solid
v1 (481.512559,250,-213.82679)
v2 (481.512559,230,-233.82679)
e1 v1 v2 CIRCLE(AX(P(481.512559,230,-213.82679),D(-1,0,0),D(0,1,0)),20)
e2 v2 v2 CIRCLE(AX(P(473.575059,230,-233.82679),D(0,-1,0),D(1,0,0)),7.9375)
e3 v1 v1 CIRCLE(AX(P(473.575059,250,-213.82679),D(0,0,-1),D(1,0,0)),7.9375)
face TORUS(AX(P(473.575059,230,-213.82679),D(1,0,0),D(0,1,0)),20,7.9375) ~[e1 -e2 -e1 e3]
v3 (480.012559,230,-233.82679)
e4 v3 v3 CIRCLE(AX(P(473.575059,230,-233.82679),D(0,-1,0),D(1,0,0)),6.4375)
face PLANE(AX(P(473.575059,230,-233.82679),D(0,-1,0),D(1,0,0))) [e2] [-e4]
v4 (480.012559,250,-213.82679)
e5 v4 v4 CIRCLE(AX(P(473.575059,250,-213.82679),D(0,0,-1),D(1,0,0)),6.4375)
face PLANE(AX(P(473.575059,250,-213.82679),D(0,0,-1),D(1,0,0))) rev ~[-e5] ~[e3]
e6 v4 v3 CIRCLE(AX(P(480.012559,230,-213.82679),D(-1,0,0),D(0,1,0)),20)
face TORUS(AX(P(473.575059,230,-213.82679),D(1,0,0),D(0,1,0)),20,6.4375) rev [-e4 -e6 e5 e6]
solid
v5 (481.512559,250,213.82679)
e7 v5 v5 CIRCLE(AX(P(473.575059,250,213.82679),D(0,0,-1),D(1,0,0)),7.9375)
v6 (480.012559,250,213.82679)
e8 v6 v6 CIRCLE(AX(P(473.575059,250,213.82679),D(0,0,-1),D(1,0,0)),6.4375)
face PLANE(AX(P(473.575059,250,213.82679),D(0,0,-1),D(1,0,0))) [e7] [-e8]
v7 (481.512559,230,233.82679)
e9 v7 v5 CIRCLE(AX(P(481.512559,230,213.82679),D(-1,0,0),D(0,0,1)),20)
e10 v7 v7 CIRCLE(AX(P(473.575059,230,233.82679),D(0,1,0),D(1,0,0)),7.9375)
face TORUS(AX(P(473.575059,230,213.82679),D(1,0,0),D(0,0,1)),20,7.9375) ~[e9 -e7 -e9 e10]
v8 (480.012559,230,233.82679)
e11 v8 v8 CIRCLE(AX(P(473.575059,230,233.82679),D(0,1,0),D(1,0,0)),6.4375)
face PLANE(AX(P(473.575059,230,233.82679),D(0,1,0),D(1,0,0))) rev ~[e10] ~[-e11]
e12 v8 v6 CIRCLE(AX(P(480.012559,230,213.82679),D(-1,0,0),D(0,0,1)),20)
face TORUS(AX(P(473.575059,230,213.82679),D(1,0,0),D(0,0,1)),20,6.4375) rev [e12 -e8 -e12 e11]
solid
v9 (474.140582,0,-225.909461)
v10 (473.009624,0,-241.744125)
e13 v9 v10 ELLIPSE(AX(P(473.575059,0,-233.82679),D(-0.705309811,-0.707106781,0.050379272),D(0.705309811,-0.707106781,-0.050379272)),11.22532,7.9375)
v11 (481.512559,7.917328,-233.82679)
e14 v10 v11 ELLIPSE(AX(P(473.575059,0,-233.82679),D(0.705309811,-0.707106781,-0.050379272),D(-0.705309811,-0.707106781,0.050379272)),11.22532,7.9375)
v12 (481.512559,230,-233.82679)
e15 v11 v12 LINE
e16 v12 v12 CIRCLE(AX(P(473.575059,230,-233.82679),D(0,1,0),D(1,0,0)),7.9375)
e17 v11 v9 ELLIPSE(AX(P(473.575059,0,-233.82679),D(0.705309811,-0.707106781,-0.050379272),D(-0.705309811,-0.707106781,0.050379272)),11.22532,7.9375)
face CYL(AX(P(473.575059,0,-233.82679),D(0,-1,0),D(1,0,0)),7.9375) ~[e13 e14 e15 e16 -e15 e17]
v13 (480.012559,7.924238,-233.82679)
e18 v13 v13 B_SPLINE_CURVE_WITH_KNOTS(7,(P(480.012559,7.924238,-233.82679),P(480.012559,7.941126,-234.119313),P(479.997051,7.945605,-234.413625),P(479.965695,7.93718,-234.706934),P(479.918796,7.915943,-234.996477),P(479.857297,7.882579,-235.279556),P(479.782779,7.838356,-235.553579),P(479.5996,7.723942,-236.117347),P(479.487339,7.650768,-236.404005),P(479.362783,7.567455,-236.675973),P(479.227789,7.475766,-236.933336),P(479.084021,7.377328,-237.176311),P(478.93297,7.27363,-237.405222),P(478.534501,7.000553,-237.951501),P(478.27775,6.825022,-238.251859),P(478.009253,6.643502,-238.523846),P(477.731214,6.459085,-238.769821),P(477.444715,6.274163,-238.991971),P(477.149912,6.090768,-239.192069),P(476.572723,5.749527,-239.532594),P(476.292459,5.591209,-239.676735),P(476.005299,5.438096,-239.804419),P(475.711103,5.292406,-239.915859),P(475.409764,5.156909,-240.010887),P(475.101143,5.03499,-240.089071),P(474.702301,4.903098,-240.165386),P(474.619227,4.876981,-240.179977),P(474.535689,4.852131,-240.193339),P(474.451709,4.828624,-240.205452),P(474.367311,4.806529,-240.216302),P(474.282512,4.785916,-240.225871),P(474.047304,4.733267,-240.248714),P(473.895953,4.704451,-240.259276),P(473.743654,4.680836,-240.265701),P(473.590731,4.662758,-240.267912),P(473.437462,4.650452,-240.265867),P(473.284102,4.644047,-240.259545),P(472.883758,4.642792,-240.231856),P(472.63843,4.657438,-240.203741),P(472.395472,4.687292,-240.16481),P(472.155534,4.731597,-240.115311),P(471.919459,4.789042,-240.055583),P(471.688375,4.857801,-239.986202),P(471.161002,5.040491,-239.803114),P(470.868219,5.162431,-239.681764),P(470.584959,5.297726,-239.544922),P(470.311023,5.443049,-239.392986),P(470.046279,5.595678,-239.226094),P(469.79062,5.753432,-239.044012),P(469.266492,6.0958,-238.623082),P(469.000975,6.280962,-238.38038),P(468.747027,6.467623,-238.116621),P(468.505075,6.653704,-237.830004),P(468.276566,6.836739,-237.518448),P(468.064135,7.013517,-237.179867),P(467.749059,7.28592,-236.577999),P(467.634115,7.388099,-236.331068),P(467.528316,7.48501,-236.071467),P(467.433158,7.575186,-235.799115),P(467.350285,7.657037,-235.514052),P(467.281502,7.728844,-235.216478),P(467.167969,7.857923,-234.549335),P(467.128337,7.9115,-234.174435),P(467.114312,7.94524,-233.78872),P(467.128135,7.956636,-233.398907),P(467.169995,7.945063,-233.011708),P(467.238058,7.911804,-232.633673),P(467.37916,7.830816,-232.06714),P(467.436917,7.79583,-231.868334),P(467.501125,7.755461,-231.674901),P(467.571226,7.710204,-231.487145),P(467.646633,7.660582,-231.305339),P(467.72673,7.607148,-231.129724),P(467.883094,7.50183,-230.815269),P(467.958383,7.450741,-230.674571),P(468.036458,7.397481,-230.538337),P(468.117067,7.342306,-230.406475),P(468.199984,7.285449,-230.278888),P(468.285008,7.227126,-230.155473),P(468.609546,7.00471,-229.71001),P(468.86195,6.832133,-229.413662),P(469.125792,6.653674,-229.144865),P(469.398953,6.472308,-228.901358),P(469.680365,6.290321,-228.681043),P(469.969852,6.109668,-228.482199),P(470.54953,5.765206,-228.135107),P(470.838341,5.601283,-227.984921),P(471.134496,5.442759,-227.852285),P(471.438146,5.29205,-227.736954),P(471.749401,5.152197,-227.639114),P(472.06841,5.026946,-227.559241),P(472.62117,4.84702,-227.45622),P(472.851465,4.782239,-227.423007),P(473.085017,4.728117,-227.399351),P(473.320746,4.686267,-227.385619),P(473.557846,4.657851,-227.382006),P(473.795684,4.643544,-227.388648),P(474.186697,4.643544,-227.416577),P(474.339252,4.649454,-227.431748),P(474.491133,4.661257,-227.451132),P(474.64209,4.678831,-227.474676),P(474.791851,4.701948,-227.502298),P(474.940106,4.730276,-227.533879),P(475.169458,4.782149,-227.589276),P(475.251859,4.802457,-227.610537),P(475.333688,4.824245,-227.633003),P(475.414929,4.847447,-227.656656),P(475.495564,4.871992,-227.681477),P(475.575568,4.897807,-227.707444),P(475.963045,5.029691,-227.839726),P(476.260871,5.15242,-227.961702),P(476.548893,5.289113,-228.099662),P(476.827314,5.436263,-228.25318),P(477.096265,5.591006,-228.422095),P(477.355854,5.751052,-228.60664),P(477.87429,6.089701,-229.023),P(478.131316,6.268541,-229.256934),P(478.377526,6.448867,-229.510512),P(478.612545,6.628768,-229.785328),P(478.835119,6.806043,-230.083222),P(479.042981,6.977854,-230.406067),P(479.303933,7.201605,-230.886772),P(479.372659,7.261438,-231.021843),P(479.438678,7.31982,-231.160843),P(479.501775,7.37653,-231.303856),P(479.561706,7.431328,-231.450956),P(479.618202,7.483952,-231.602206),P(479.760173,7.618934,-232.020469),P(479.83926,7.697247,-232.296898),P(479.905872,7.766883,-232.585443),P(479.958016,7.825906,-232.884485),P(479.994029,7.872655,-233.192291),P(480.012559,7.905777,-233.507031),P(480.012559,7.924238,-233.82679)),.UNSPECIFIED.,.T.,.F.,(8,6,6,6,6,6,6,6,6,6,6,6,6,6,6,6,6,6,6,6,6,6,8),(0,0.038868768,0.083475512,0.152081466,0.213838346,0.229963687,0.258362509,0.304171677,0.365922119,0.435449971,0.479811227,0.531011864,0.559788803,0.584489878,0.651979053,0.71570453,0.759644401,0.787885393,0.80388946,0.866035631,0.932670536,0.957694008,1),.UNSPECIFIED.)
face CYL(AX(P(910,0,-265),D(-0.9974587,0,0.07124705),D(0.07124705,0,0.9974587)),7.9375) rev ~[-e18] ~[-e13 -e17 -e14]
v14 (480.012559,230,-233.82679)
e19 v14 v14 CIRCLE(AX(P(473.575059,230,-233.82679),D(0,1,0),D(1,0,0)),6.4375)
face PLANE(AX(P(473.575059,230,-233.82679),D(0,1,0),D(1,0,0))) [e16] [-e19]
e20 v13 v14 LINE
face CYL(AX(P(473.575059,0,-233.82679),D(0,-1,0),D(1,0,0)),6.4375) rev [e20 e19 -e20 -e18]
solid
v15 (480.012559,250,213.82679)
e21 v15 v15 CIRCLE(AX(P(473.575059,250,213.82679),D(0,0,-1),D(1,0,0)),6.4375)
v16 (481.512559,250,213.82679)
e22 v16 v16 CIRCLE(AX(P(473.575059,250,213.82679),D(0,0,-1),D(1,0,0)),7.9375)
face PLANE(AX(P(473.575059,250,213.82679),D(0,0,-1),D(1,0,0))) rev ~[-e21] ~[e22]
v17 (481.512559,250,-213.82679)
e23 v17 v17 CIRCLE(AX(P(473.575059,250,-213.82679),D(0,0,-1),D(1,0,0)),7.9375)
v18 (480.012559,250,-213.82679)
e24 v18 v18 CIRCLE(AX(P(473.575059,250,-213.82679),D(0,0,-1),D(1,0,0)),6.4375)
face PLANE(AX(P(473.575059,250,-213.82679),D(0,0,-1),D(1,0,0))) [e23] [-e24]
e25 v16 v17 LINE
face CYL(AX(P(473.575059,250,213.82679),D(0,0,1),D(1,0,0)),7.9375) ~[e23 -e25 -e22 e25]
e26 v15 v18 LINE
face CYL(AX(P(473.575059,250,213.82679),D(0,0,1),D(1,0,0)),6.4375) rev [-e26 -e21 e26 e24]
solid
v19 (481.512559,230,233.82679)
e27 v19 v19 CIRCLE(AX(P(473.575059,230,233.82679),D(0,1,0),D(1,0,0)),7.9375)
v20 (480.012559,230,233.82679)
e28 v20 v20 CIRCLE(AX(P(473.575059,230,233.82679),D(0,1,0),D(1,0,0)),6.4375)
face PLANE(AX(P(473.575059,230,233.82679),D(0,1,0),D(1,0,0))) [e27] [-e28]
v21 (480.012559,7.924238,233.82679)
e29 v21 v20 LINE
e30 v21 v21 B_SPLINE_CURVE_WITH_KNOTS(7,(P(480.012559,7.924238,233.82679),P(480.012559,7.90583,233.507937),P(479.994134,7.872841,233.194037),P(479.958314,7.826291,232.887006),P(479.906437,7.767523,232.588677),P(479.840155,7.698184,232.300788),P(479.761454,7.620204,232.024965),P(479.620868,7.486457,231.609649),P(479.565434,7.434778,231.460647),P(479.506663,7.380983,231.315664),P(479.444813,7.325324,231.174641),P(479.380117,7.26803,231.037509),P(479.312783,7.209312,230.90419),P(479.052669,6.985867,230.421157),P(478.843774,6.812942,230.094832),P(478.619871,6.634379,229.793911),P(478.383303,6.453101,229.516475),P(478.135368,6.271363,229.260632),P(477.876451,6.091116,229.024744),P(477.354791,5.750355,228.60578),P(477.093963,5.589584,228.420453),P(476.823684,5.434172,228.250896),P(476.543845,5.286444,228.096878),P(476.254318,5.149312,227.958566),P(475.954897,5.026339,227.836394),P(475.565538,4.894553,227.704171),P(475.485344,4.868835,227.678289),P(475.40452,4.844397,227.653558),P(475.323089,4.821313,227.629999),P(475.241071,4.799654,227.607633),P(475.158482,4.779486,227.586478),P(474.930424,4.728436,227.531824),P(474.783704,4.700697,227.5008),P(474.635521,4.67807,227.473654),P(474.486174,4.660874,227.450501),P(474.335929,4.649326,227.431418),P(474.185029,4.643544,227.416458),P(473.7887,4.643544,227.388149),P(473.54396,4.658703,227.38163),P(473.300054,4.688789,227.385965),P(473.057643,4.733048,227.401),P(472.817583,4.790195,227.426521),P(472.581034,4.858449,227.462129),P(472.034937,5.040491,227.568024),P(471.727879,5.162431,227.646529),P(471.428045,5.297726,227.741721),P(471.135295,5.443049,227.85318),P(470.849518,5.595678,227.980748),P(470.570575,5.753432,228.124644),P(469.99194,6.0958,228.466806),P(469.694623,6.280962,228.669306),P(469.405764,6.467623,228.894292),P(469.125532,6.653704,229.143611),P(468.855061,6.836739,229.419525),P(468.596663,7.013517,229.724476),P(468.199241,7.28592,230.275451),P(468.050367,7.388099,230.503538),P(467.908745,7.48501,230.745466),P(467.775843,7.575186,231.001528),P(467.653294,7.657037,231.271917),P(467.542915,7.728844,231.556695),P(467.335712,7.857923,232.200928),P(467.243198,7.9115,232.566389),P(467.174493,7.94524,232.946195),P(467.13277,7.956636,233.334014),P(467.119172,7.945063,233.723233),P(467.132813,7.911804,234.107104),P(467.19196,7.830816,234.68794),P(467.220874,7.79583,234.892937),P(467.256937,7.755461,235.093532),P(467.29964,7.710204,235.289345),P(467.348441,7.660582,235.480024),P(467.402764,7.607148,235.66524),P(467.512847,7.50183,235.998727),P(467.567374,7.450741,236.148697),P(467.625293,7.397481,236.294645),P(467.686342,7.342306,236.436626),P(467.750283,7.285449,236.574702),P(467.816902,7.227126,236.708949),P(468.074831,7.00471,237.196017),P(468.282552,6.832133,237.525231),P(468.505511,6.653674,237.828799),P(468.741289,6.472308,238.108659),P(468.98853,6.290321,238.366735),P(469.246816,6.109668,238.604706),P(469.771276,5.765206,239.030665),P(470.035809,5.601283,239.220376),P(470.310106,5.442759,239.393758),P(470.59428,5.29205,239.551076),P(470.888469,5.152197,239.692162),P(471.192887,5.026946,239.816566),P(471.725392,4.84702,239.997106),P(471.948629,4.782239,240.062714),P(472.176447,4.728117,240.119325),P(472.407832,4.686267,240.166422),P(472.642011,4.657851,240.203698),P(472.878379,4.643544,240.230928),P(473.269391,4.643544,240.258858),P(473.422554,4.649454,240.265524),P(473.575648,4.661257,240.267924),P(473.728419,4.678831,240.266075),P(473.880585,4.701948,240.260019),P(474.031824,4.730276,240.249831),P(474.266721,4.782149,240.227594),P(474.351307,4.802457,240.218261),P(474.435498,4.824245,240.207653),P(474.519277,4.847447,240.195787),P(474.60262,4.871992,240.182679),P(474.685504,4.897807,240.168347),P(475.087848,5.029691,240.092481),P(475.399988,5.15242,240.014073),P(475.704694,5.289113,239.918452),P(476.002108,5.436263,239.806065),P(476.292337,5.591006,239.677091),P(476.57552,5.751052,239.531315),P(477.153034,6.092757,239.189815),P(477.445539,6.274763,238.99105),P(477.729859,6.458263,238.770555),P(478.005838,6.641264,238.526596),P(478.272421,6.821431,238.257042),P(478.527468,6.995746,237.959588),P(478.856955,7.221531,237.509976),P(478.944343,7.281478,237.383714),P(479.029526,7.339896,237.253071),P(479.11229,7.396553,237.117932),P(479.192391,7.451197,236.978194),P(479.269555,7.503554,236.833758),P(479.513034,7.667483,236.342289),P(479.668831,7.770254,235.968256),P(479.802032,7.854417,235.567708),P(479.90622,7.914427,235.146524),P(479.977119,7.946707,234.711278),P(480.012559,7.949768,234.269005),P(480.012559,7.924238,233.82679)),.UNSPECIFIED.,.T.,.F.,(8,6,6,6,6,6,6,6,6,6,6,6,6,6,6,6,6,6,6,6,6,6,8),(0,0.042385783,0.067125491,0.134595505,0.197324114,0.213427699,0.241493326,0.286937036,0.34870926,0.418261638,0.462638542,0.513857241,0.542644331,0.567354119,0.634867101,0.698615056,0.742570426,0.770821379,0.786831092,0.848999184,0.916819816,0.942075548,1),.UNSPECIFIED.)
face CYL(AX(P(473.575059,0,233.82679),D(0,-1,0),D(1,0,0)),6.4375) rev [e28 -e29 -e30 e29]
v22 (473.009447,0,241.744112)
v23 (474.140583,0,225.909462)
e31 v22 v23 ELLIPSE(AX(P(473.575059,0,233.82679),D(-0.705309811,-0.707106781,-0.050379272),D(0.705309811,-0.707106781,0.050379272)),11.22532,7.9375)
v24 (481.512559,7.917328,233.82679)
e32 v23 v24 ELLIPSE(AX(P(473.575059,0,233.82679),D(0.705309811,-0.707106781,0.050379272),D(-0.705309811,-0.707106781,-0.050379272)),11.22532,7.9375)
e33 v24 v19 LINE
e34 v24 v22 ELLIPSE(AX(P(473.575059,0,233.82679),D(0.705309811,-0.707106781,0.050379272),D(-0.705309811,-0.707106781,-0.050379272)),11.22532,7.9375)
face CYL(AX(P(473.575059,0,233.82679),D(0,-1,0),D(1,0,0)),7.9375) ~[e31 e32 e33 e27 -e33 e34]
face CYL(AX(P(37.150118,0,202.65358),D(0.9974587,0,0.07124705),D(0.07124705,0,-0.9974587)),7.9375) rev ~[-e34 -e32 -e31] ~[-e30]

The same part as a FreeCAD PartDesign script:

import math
import FreeCAD as App
import Part
import Sketcher

V = App.Vector

doc = App.newDocument("Part")
body = doc.addObject("PartDesign::Body", "Body")

sketch1 = doc.addObject("Sketcher::SketchObject", "Sketch")
body.addObject(sketch1)
sketch1.AttachmentSupport = (doc.XZ_Plane, [""])
sketch1.MapMode = "FlatFace"
sketch1.addGeometry([
    Part.Circle(V(474, 234, 0), V(0, 0, 1), 8),
    Part.Circle(V(474, 234, 0), V(0, 0, 1), 6),
], False)
sketch1.addConstraint([
    Sketcher.Constraint("Coincident", 1, 3, 0, 3),
    Sketcher.Constraint("Diameter", 0, 15.875),
    Sketcher.Constraint("Diameter", 1, 12.875),
    Sketcher.Constraint("DistanceX", -1, 1, 0, 3, 473.575059),
    Sketcher.Constraint("DistanceY", -1, 1, 0, 3, 233.82679),
])
pad1 = doc.addObject("PartDesign::Pad", "Pad")
body.addObject(pad1)
pad1.Profile = sketch1
pad1.Length = 230
pad1.Reversed = True
body2 = doc.addObject("PartDesign::Body", "Body001")

sketch2 = doc.addObject("Sketcher::SketchObject", "Sketch001")
body2.addObject(sketch2)
sketch2.AttachmentSupport = (doc.getObject("XZ_Plane001"), [""])
sketch2.MapMode = "FlatFace"
sketch2.AttachmentOffset = App.Placement(V(0, 0, -230), App.Rotation())
sketch2.addGeometry([
    Part.Circle(V(474, 234, 0), V(0, 0, 1), 8),
    Part.Circle(V(474, 234, 0), V(0, 0, 1), 6),
], False)
sketch2.addGeometry(Part.LineSegment(V(474, 214, 0), V(464, 214, 0)), True)
sketch2.addConstraint([
    Sketcher.Constraint("Horizontal", 2),
    Sketcher.Constraint("Coincident", 1, 3, 0, 3),
    Sketcher.Constraint("Vertical", 1, 3, 2, 1),
    Sketcher.Constraint("DistanceX", 2, 2, 2, 1, 10.0),
    Sketcher.Constraint("Diameter", 0, 15.875),
    Sketcher.Constraint("Diameter", 1, 12.875),
    Sketcher.Constraint("DistanceY", 2, 1, 0, 3, 20.0),
    Sketcher.Constraint("DistanceX", -1, 1, 0, 3, 473.575059),
    Sketcher.Constraint("DistanceY", -1, 1, 0, 3, 233.82679),
])
revolution = doc.addObject("PartDesign::Revolution", "Revolution")
body2.addObject(revolution)
revolution.Profile = sketch2
revolution.ReferenceAxis = (sketch2, ["Axis0"])
revolution.Angle = 90
body3 = doc.addObject("PartDesign::Body", "Body002")

sketch3 = doc.addObject("Sketcher::SketchObject", "Sketch002")
body3.addObject(sketch3)
sketch3.AttachmentSupport = (doc.getObject("XY_Plane002"), [""])
sketch3.MapMode = "FlatFace"
sketch3.AttachmentOffset = App.Placement(V(0, 0, 213.82679), App.Rotation())
sketch3.addGeometry([
    Part.Circle(V(474, 250, 0), V(0, 0, 1), 8),
    Part.Circle(V(474, 250, 0), V(0, 0, 1), 6),
], False)
sketch3.addConstraint([
    Sketcher.Constraint("Coincident", 1, 3, 0, 3),
    Sketcher.Constraint("Diameter", 0, 15.875),
    Sketcher.Constraint("Diameter", 1, 12.875),
    Sketcher.Constraint("DistanceY", -1, 1, 0, 3, 250.0),
    Sketcher.Constraint("DistanceX", -1, 1, 0, 3, 473.575059),
])
pad2 = doc.addObject("PartDesign::Pad", "Pad001")
body3.addObject(pad2)
pad2.Profile = sketch3
pad2.Length = 427.65358
pad2.Reversed = True
body4 = doc.addObject("PartDesign::Body", "Body003")

sketch4 = doc.addObject("Sketcher::SketchObject", "Sketch003")
body4.addObject(sketch4)
sketch4.AttachmentSupport = (doc.getObject("XY_Plane003"), [""])
sketch4.MapMode = "FlatFace"
sketch4.AttachmentOffset = App.Placement(V(0, 0, -213.82679), App.Rotation())
sketch4.addGeometry([
    Part.Circle(V(474, 250, 0), V(0, 0, 1), 8),
    Part.Circle(V(474, 250, 0), V(0, 0, 1), 6),
], False)
sketch4.addGeometry(Part.LineSegment(V(474, 230, 0), V(464, 230, 0)), True)
sketch4.addConstraint([
    Sketcher.Constraint("Horizontal", 2),
    Sketcher.Constraint("Coincident", 1, 3, 0, 3),
    Sketcher.Constraint("Vertical", 1, 3, 2, 1),
    Sketcher.Constraint("DistanceX", 2, 2, 2, 1, 10.0),
    Sketcher.Constraint("Diameter", 0, 15.875),
    Sketcher.Constraint("Diameter", 1, 12.875),
    Sketcher.Constraint("DistanceY", -1, 1, 0, 3, 250.0),
    Sketcher.Constraint("DistanceY", -1, 1, 2, 1, 230.0),
    Sketcher.Constraint("DistanceX", -1, 1, 0, 3, 473.575059),
])
revolution2 = doc.addObject("PartDesign::Revolution", "Revolution001")
body4.addObject(revolution2)
revolution2.Profile = sketch4
revolution2.ReferenceAxis = (sketch4, ["Axis0"])
revolution2.Angle = 90
body5 = doc.addObject("PartDesign::Body", "Body004")

sketch5 = doc.addObject("Sketcher::SketchObject", "Sketch004")
body5.addObject(sketch5)
sketch5.AttachmentSupport = (doc.getObject("XZ_Plane004"), [""])
sketch5.MapMode = "FlatFace"
sketch5.addGeometry([
    Part.Circle(V(474, -234, 0), V(0, 0, 1), 8),
    Part.Circle(V(474, -234, 0), V(0, 0, 1), 6),
], False)
sketch5.addConstraint([
    Sketcher.Constraint("Coincident", 1, 3, 0, 3),
    Sketcher.Constraint("Diameter", 0, 15.875),
    Sketcher.Constraint("Diameter", 1, 12.875),
    Sketcher.Constraint("DistanceX", -1, 1, 0, 3, 473.575059),
    Sketcher.Constraint("DistanceY", 0, 3, -1, 1, 233.82679),
])
pad3 = doc.addObject("PartDesign::Pad", "Pad002")
body5.addObject(pad3)
pad3.Profile = sketch5
pad3.Length = 230
pad3.Reversed = True
body6 = doc.addObject("PartDesign::Body", "Body005")

sketch6 = doc.addObject("Sketcher::SketchObject", "Sketch005")
body6.addObject(sketch6)
sketch6.AttachmentSupport = (doc.getObject("XY_Plane005"), [""])
sketch6.MapMode = "FlatFace"
sketch6.addGeometry(Part.Circle(V(0, 0, 0), V(0, 0, 1), 8), False)
sketch6.addConstraint([
    Sketcher.Constraint("Coincident", 0, 3, -1, 1),
    Sketcher.Constraint("Diameter", 0, 15.875),
])

sketch7 = doc.addObject("Sketcher::SketchObject", "Sketch006")
body6.addObject(sketch7)
sketch7.AttachmentSupport = (doc.getObject("XZ_Plane005"), [""])
sketch7.MapMode = "FlatFace"
sketch7.addGeometry([
    Part.LineSegment(V(910, -265, 0), V(37, -203, 0)),
    Part.ArcOfCircle(Part.Circle(V(40, -163, 0), V(0, 0, 1), 40), math.radians(-180), math.radians(-94)),
    Part.LineSegment(V(0, -163, 0), V(0, 163, 0)),
    Part.ArcOfCircle(Part.Circle(V(40, 163, 0), V(0, 0, 1), 40), math.radians(94), math.radians(180)),
    Part.LineSegment(V(37, 203, 0), V(910, 265, 0)),
], False)
sketch7.addConstraint([
    Sketcher.Constraint("Tangent", 0, 2, 1, 2),
    Sketcher.Constraint("Tangent", 1, 1, 2, 1),
    Sketcher.Constraint("Tangent", 2, 2, 3, 2),
    Sketcher.Constraint("Tangent", 3, 1, 4, 1),
    Sketcher.Constraint("Vertical", 2),
    Sketcher.Constraint("Equal", 1, 3),
    Sketcher.Constraint("Symmetric", 1, 1, 2, 2, -1, 1),
    Sketcher.Constraint("Symmetric", 0, 1, 4, 2, -1),
    Sketcher.Constraint("Radius", 1, 40.0),
    Sketcher.Constraint("DistanceX", -1, 1, 0, 1, 910.0),
    Sketcher.Constraint("DistanceY", 0, 1, -1, 1, 265.0),
    Sketcher.Constraint("DistanceY", 2, 1, 2, 2, 325.510464),
])
doc.recompute()

additivepipe = doc.addObject("PartDesign::AdditivePipe", "AdditivePipe")
body6.addObject(additivepipe)
additivepipe.Profile = sketch6
additivepipe.Spine = (sketch7, ["Edge1", "Edge2", "Edge3", "Edge4", "Edge5"])
doc.recompute()

body7 = doc.addObject("PartDesign::Body", "Body006")
body7.BaseFeature = body6
boolean = doc.addObject("PartDesign::Boolean", "Boolean")
body.addObject(boolean)
boolean.Type = "Cut"
boolean.addObjects([body7])
doc.recompute()

boolean2 = doc.addObject("PartDesign::Boolean", "Boolean001")
body5.addObject(boolean2)
boolean2.Type = "Cut"
boolean2.addObjects([body6])

doc.recompute()
